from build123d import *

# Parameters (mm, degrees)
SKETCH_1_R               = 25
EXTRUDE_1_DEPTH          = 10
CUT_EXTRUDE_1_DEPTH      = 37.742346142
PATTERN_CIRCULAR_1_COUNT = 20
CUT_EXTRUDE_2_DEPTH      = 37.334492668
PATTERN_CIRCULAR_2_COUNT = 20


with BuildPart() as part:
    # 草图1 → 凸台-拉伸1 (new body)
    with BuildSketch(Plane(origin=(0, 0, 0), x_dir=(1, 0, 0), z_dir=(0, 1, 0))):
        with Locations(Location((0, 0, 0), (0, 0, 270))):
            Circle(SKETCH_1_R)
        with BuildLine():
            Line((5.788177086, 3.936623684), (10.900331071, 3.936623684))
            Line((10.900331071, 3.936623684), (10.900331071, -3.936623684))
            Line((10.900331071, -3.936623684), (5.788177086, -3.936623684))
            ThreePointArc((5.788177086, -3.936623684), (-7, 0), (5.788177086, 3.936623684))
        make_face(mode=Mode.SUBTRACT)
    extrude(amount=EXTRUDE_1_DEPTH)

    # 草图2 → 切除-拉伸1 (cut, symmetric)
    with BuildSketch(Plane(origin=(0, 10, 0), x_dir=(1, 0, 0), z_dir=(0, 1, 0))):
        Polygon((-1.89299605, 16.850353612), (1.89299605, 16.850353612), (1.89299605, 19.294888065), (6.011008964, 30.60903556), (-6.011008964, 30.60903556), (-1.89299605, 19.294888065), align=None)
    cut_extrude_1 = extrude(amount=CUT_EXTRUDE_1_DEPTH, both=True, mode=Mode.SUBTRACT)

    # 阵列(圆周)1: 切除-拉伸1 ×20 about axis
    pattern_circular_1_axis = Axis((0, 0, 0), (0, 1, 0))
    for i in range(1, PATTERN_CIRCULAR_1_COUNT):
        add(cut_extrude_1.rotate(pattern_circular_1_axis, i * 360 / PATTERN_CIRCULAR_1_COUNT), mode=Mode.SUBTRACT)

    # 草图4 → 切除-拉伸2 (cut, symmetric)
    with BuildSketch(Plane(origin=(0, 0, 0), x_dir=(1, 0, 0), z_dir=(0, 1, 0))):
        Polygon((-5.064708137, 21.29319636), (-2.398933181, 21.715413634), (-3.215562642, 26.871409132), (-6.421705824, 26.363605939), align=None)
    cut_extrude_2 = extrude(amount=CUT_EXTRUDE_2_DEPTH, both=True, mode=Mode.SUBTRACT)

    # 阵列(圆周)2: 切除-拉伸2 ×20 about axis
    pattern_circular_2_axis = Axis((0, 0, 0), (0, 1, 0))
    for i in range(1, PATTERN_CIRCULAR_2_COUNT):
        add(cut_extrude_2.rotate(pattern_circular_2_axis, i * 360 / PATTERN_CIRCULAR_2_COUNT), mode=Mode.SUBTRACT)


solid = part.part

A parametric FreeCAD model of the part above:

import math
import FreeCAD as App
import Part
import Sketcher

V = App.Vector
Q = App.Units.Quantity


def add_polygon(sketch, points):
    """Adds a closed chain of lines whose ends are joined by coincident constraints."""
    first, n = sketch.GeometryCount, len(points)
    for a, b in zip(points, points[1:] + points[:1]):
        sketch.addGeometry(Part.LineSegment(App.Vector(*a, 0), App.Vector(*b, 0)), False)
    for i in range(n):
        sketch.addConstraint(Sketcher.Constraint("Coincident", first + i, 2, first + (i + 1) % n, 1))

doc = App.newDocument("Part")
body = doc.addObject("PartDesign::Body", "Body")

sketch1 = doc.addObject("Sketcher::SketchObject", "Sketch")
body.addObject(sketch1)
sketch1.AttachmentSupport = (doc.XZ_Plane, [""])
sketch1.MapMode = "FlatFace"
sketch1.addGeometry(Part.Circle(V(0, 0, 0), V(0, 0, 1), 25), False)
sketch1.addGeometry(Part.ArcOfCircle(Part.Circle(V(0, 0, 0), V(0, 0, 1), 7), math.radians(34), math.radians(326)), False)
sketch1.addGeometry(Part.LineSegment(V(6, -4, 0), V(11, -4, 0)), False)
sketch1.addGeometry(Part.LineSegment(V(11, -4, 0), V(11, 4, 0)), False)
sketch1.addGeometry(Part.LineSegment(V(11, 4, 0), V(6, 4, 0)), False)
sketch1.addConstraint(Sketcher.Constraint("Coincident", 1, 2, 2, 1))
sketch1.addConstraint(Sketcher.Constraint("Coincident", 2, 2, 3, 1))
sketch1.addConstraint(Sketcher.Constraint("Coincident", 3, 2, 4, 1))
sketch1.addConstraint(Sketcher.Constraint("Coincident", 4, 2, 1, 1))
sketch1.addConstraint(Sketcher.Constraint("Horizontal", 2))
sketch1.addConstraint(Sketcher.Constraint("Vertical", 3))
sketch1.addConstraint(Sketcher.Constraint("Horizontal", 4))
sketch1.addConstraint(Sketcher.Constraint("Coincident", 0, 3, -1, 1))
sketch1.addConstraint(Sketcher.Constraint("Coincident", 1, 3, -1, 1))
sketch1.addConstraint(Sketcher.Constraint("Vertical", 1, 2, 4, 2))
sketch1.addConstraint(Sketcher.Constraint("Diameter", 0, 50.0))
sketch1.addConstraint(Sketcher.Constraint("Radius", 1, 7.0))
sketch1.addConstraint(Sketcher.Constraint("DistanceX", 2, 1, 2, 2, 5.112154))
sketch1.addConstraint(Sketcher.Constraint("DistanceY", 3, 1, 3, 2, 7.873247))
pad1 = doc.addObject("PartDesign::Pad", "Pad")
body.addObject(pad1)
pad1.Profile = sketch1
pad1.Length = 10
pad1.Reversed = True

sketch2 = doc.addObject("Sketcher::SketchObject", "Sketch001")
body.addObject(sketch2)
sketch2.AttachmentSupport = (doc.XZ_Plane, [""])
sketch2.MapMode = "FlatFace"
sketch2.AttachmentOffset = App.Placement(V(0, 0, -10), App.Rotation())
add_polygon(sketch2, [(-1.9, -16.9), (1.9, -16.9), (1.9, -19.3), (6, -30.6), (-6, -30.6), (-1.9, -19.3)])
sketch2.addConstraint(Sketcher.Constraint("Horizontal", 0))
sketch2.addConstraint(Sketcher.Constraint("Vertical", 1))
sketch2.addConstraint(Sketcher.Constraint("Horizontal", 3))
sketch2.addConstraint(Sketcher.Constraint("Vertical", 5))
sketch2.addConstraint(Sketcher.Constraint("Symmetric", 1, 2, 4, 2, -2))
sketch2.addConstraint(Sketcher.Constraint("Equal", 2, 4))
sketch2.addConstraint(Sketcher.Constraint("Angle", 2, Q("-70 deg")))
sketch2.addConstraint(Sketcher.Constraint("DistanceX", 0, 1, 0, 2, 3.785992))
sketch2.addConstraint(Sketcher.Constraint("DistanceX", 3, 2, 3, 1, 12.022018))
sketch2.addConstraint(Sketcher.Constraint("DistanceY", 1, 2, 1, 1, 2.444534))
sketch2.addConstraint(Sketcher.Constraint("DistanceY", 1, 2, -1, 1, 19.294888))
pocket1 = doc.addObject("PartDesign::Pocket", "Pocket")
body.addObject(pocket1)
pocket1.Profile = sketch2
pocket1.Length = 75.484692
pocket1.Midplane = True
doc.recompute()

polarpattern = doc.addObject("PartDesign::PolarPattern", "PolarPattern")
body.addObject(polarpattern)
polarpattern.Originals = [pocket1]
polarpattern.Axis = (doc.Y_Axis, [""])
polarpattern.Angle = 360
polarpattern.Occurrences = 20
body.Tip = polarpattern

sketch3 = doc.addObject("Sketcher::SketchObject", "Sketch002")
body.addObject(sketch3)
sketch3.AttachmentSupport = (doc.XZ_Plane, [""])
sketch3.MapMode = "FlatFace"
add_polygon(sketch3, [(-5.064708, -21.293196), (-2.398933, -21.715414), (-3.215563, -26.871409), (-6.421706, -26.363606)])
sketch3.addConstraint(Sketcher.Constraint("Distance", 2, 3.246108))
sketch3.addConstraint(Sketcher.Constraint("DistanceY", 1, 2, -1, 1, 26.871409))
sketch3.addConstraint(Sketcher.Constraint("DistanceX", 3, 2, -1, 1, 5.064708))
sketch3.addConstraint(Sketcher.Constraint("DistanceX", 1, 2, 0, 2, 0.816629))
sketch3.addConstraint(Sketcher.Constraint("DistanceY", 2, 2, 3, 2, 5.07041))
sketch3.addConstraint(Sketcher.Constraint("Distance", 0, 2.699004))
sketch3.addConstraint(Sketcher.Constraint("Distance", 1, 5.220266))
sketch3.addConstraint(Sketcher.Constraint("DistanceX", 0, 2, -1, 1, 2.398933))
pocket2 = doc.addObject("PartDesign::Pocket", "Pocket001")
body.addObject(pocket2)
pocket2.Profile = sketch3
pocket2.Length = 74.668985
pocket2.Midplane = True
doc.recompute()

polarpattern2 = doc.addObject("PartDesign::PolarPattern", "PolarPattern001")
body.addObject(polarpattern2)
polarpattern2.Originals = [pocket2]
polarpattern2.Axis = (doc.Y_Axis, [""])
polarpattern2.Angle = 360
polarpattern2.Occurrences = 20
body.Tip = polarpattern2

doc.recompute()
